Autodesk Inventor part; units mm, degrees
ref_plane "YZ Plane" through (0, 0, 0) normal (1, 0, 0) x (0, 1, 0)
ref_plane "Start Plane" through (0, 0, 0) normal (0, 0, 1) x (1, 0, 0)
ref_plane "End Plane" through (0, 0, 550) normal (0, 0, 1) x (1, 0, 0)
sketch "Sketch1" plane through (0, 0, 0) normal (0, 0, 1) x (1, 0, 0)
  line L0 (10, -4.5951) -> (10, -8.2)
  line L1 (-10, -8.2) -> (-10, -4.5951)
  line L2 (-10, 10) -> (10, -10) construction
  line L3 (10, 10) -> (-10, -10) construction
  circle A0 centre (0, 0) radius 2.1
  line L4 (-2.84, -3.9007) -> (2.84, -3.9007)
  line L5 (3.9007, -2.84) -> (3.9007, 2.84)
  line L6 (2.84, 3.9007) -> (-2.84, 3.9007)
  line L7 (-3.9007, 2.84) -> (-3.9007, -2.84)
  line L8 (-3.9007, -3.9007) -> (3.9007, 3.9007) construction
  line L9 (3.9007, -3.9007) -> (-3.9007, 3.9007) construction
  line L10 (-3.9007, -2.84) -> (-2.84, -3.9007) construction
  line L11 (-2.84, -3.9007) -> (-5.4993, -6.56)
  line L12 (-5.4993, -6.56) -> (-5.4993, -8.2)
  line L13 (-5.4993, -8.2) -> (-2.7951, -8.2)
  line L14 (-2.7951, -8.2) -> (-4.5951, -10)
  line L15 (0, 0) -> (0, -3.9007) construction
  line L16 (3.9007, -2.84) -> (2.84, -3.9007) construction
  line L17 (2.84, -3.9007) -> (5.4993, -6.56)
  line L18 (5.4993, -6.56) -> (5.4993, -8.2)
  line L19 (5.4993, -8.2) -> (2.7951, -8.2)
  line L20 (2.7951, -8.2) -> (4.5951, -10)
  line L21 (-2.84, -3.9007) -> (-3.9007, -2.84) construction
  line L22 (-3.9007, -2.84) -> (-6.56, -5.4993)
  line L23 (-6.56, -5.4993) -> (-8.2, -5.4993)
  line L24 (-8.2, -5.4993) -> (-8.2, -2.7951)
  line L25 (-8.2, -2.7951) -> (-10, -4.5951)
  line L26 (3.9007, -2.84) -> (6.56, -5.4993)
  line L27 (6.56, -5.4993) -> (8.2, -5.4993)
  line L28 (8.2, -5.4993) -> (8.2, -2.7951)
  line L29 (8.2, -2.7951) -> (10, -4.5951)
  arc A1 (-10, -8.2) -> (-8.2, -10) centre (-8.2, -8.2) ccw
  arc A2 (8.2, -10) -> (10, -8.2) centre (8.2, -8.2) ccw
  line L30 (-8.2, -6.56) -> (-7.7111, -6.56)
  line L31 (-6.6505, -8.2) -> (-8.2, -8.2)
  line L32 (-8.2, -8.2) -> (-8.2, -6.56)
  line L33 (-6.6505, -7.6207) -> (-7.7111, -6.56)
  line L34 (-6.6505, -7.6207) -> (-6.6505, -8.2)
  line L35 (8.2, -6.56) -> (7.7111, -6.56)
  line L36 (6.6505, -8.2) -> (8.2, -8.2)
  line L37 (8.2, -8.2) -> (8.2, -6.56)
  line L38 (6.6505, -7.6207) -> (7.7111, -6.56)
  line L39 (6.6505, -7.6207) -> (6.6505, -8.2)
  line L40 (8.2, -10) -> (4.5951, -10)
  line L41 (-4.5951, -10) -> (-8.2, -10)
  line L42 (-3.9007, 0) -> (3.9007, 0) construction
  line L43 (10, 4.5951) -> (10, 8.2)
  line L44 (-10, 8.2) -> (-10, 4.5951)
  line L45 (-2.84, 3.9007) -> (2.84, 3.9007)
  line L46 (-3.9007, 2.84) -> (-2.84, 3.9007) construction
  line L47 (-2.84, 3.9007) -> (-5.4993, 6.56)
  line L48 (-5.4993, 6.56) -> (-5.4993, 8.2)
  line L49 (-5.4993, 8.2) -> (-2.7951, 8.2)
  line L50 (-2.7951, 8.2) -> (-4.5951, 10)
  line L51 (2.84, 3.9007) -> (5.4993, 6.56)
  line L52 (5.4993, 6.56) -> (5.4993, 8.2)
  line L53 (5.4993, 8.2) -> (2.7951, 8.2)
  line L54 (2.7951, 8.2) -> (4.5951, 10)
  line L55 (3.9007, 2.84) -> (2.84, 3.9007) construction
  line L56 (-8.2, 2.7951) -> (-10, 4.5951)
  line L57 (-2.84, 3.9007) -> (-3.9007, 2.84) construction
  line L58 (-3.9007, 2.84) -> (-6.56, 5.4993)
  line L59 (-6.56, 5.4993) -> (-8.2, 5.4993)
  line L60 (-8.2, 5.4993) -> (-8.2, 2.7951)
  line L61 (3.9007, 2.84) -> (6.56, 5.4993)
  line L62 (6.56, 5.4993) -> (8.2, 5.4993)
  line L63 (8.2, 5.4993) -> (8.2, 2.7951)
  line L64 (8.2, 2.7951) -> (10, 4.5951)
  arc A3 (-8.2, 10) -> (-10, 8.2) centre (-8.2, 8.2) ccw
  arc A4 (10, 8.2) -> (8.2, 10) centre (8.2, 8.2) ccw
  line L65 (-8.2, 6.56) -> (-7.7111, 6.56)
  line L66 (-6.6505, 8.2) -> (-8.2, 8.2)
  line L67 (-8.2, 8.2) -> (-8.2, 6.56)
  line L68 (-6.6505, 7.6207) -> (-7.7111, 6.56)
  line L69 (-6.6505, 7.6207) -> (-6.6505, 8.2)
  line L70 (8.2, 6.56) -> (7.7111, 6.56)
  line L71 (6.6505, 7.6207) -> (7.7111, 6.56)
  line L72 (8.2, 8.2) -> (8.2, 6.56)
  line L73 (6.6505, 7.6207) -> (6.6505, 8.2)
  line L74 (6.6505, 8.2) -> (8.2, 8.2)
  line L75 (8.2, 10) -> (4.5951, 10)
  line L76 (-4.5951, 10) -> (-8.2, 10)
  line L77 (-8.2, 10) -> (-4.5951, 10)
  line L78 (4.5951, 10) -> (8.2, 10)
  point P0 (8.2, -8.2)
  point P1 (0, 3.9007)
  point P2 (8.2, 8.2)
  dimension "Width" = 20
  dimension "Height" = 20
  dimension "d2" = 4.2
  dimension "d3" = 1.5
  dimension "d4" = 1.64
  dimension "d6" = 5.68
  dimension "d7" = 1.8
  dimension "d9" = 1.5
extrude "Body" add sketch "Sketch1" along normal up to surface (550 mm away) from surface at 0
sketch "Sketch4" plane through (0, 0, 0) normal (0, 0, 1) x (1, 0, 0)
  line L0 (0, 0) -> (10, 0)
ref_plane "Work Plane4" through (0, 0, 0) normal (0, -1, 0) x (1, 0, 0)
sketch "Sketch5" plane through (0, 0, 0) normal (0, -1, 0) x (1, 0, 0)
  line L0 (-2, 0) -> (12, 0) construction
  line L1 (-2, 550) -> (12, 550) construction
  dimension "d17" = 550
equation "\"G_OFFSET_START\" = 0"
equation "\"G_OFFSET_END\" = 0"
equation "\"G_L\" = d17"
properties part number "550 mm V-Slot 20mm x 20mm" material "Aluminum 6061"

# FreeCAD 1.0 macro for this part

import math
import FreeCAD as App
import Part
import Sketcher

V = App.Vector
Q = App.Units.Quantity


def add_polygon(sketch, points):
    """Adds a closed chain of lines whose ends are joined by coincident constraints."""
    first, n = sketch.GeometryCount, len(points)
    for a, b in zip(points, points[1:] + points[:1]):
        sketch.addGeometry(Part.LineSegment(App.Vector(*a, 0), App.Vector(*b, 0)), False)
    for i in range(n):
        sketch.addConstraint(Sketcher.Constraint("Coincident", first + i, 2, first + (i + 1) % n, 1))

doc = App.newDocument("Part")
body = doc.addObject("PartDesign::Body", "Body")

sketch1 = doc.addObject("Sketcher::SketchObject", "Sketch")
body.addObject(sketch1)
sketch1.AttachmentSupport = (doc.XY_Plane, [""])
sketch1.MapMode = "FlatFace"
sketch1.addGeometry(Part.LineSegment(V(10, -8.2, 0), V(10, -4.6, 0)), False)
sketch1.addGeometry(Part.LineSegment(V(10, -4.6, 0), V(8.2, -2.8, 0)), False)
sketch1.addGeometry(Part.LineSegment(V(8.2, -2.8, 0), V(8.2, -5.5, 0)), False)
sketch1.addGeometry(Part.LineSegment(V(8.2, -5.5, 0), V(6.56, -5.5, 0)), False)
sketch1.addGeometry(Part.LineSegment(V(6.56, -5.5, 0), V(3.9, -2.84, 0)), False)
sketch1.addGeometry(Part.LineSegment(V(3.9, -2.84, 0), V(3.9, 2.84, 0)), False)
sketch1.addGeometry(Part.LineSegment(V(3.9, 2.84, 0), V(6.56, 5.5, 0)), False)
sketch1.addGeometry(Part.LineSegment(V(6.56, 5.5, 0), V(8.2, 5.5, 0)), False)
sketch1.addGeometry(Part.LineSegment(V(8.2, 5.5, 0), V(8.2, 2.8, 0)), False)
sketch1.addGeometry(Part.LineSegment(V(8.2, 2.8, 0), V(10, 4.6, 0)), False)
sketch1.addGeometry(Part.LineSegment(V(10, 4.6, 0), V(10, 8.2, 0)), False)
sketch1.addGeometry(Part.ArcOfCircle(Part.Circle(V(8.2, 8.2, 0), V(0, 0, 1), 1.8), math.radians(0), math.radians(90)), False)
sketch1.addGeometry(Part.LineSegment(V(8.2, 10, 0), V(4.6, 10, 0)), False)
sketch1.addGeometry(Part.LineSegment(V(4.6, 10, 0), V(2.8, 8.2, 0)), False)
sketch1.addGeometry(Part.LineSegment(V(2.8, 8.2, 0), V(5.5, 8.2, 0)), False)
sketch1.addGeometry(Part.LineSegment(V(5.5, 8.2, 0), V(5.5, 6.56, 0)), False)
sketch1.addGeometry(Part.LineSegment(V(5.5, 6.56, 0), V(2.84, 3.9, 0)), False)
sketch1.addGeometry(Part.LineSegment(V(2.84, 3.9, 0), V(-2.84, 3.9, 0)), False)
sketch1.addGeometry(Part.LineSegment(V(-2.84, 3.9, 0), V(-5.5, 6.56, 0)), False)
sketch1.addGeometry(Part.LineSegment(V(-5.5, 6.56, 0), V(-5.5, 8.2, 0)), False)
sketch1.addGeometry(Part.LineSegment(V(-5.5, 8.2, 0), V(-2.8, 8.2, 0)), False)
sketch1.addGeometry(Part.LineSegment(V(-2.8, 8.2, 0), V(-4.6, 10, 0)), False)
sketch1.addGeometry(Part.LineSegment(V(-4.6, 10, 0), V(-8.2, 10, 0)), False)
sketch1.addGeometry(Part.ArcOfCircle(Part.Circle(V(-8.2, 8.2, 0), V(0, 0, 1), 1.8), math.radians(90), math.radians(180)), False)
sketch1.addGeometry(Part.LineSegment(V(-10, 8.2, 0), V(-10, 4.6, 0)), False)
sketch1.addGeometry(Part.LineSegment(V(-10, 4.6, 0), V(-8.2, 2.8, 0)), False)
sketch1.addGeometry(Part.LineSegment(V(-8.2, 2.8, 0), V(-8.2, 5.5, 0)), False)
sketch1.addGeometry(Part.LineSegment(V(-8.2, 5.5, 0), V(-6.56, 5.5, 0)), False)
sketch1.addGeometry(Part.LineSegment(V(-6.56, 5.5, 0), V(-3.9, 2.84, 0)), False)
sketch1.addGeometry(Part.LineSegment(V(-3.9, 2.84, 0), V(-3.9, -2.84, 0)), False)
sketch1.addGeometry(Part.LineSegment(V(-3.9, -2.84, 0), V(-6.56, -5.5, 0)), False)
sketch1.addGeometry(Part.LineSegment(V(-6.56, -5.5, 0), V(-8.2, -5.5, 0)), False)
sketch1.addGeometry(Part.LineSegment(V(-8.2, -5.5, 0), V(-8.2, -2.8, 0)), False)
sketch1.addGeometry(Part.LineSegment(V(-8.2, -2.8, 0), V(-10, -4.6, 0)), False)
sketch1.addGeometry(Part.LineSegment(V(-10, -4.6, 0), V(-10, -8.2, 0)), False)
sketch1.addGeometry(Part.ArcOfCircle(Part.Circle(V(-8.2, -8.2, 0), V(0, 0, 1), 1.8), math.radians(180), math.radians(270)), False)
sketch1.addGeometry(Part.LineSegment(V(-8.2, -10, 0), V(-4.6, -10, 0)), False)
sketch1.addGeometry(Part.LineSegment(V(-4.6, -10, 0), V(-2.8, -8.2, 0)), False)
sketch1.addGeometry(Part.LineSegment(V(-2.8, -8.2, 0), V(-5.5, -8.2, 0)), False)
sketch1.addGeometry(Part.LineSegment(V(-5.5, -8.2, 0), V(-5.5, -6.56, 0)), False)
sketch1.addGeometry(Part.LineSegment(V(-5.5, -6.56, 0), V(-2.84, -3.9, 0)), False)
sketch1.addGeometry(Part.LineSegment(V(-2.84, -3.9, 0), V(2.84, -3.9, 0)), False)
sketch1.addGeometry(Part.LineSegment(V(2.84, -3.9, 0), V(5.5, -6.56, 0)), False)
sketch1.addGeometry(Part.LineSegment(V(5.5, -6.56, 0), V(5.5, -8.2, 0)), False)
sketch1.addGeometry(Part.LineSegment(V(5.5, -8.2, 0), V(2.8, -8.2, 0)), False)
sketch1.addGeometry(Part.LineSegment(V(2.8, -8.2, 0), V(4.6, -10, 0)), False)
sketch1.addGeometry(Part.LineSegment(V(4.6, -10, 0), V(8.2, -10, 0)), False)
sketch1.addGeometry(Part.ArcOfCircle(Part.Circle(V(8.2, -8.2, 0), V(0, 0, 1), 1.8), math.radians(-90), math.radians(0)), False)
add_polygon(sketch1, [(-8.2, -8.2), (-8.2, -6.56), (-7.71, -6.56), (-6.65, -7.62), (-6.65, -8.2)])
add_polygon(sketch1, [(7.71, -6.56), (8.2, -6.56), (8.2, -8.2), (6.65, -8.2), (6.65, -7.62)])
add_polygon(sketch1, [(-7.71, 6.56), (-8.2, 6.56), (-8.2, 8.2), (-6.65, 8.2), (-6.65, 7.62)])
sketch1.addGeometry(Part.Circle(V(0, 0, 0), V(0, 0, 1), 2.1), False)
add_polygon(sketch1, [(8.2, 8.2), (8.2, 6.56), (7.71, 6.56), (6.65, 7.62), (6.65, 8.2)])
sketch1.addConstraint([
    Sketcher.Constraint("Coincident", 0, 2, 1, 1),
    Sketcher.Constraint("Coincident", 1, 2, 2, 1),
    Sketcher.Constraint("Coincident", 2, 2, 3, 1),
    Sketcher.Constraint("Coincident", 3, 2, 4, 1),
    Sketcher.Constraint("Coincident", 4, 2, 5, 1),
    Sketcher.Constraint("Coincident", 5, 2, 6, 1),
    Sketcher.Constraint("Coincident", 6, 2, 7, 1),
    Sketcher.Constraint("Coincident", 7, 2, 8, 1),
    Sketcher.Constraint("Coincident", 8, 2, 9, 1),
    Sketcher.Constraint("Coincident", 9, 2, 10, 1),
    Sketcher.Constraint("Tangent", 10, 2, 11, 1),
    Sketcher.Constraint("Tangent", 11, 2, 12, 1),
    Sketcher.Constraint("Coincident", 12, 2, 13, 1),
    Sketcher.Constraint("Coincident", 13, 2, 14, 1),
    Sketcher.Constraint("Coincident", 14, 2, 15, 1),
    Sketcher.Constraint("Coincident", 15, 2, 16, 1),
    Sketcher.Constraint("Coincident", 16, 2, 17, 1),
    Sketcher.Constraint("Coincident", 17, 2, 18, 1),
    Sketcher.Constraint("Coincident", 18, 2, 19, 1),
    Sketcher.Constraint("Coincident", 19, 2, 20, 1),
    Sketcher.Constraint("Coincident", 20, 2, 21, 1),
    Sketcher.Constraint("Coincident", 21, 2, 22, 1),
    Sketcher.Constraint("Tangent", 22, 2, 23, 1),
    Sketcher.Constraint("Tangent", 23, 2, 24, 1),
    Sketcher.Constraint("Coincident", 24, 2, 25, 1),
    Sketcher.Constraint("Coincident", 25, 2, 26, 1),
    Sketcher.Constraint("Coincident", 26, 2, 27, 1),
    Sketcher.Constraint("Coincident", 27, 2, 28, 1),
    Sketcher.Constraint("Coincident", 28, 2, 29, 1),
    Sketcher.Constraint("Coincident", 29, 2, 30, 1),
    Sketcher.Constraint("Coincident", 30, 2, 31, 1),
    Sketcher.Constraint("Coincident", 31, 2, 32, 1),
    Sketcher.Constraint("Coincident", 32, 2, 33, 1),
    Sketcher.Constraint("Coincident", 33, 2, 34, 1),
    Sketcher.Constraint("Tangent", 34, 2, 35, 1),
    Sketcher.Constraint("Tangent", 35, 2, 36, 1),
    Sketcher.Constraint("Coincident", 36, 2, 37, 1),
    Sketcher.Constraint("Coincident", 37, 2, 38, 1),
    Sketcher.Constraint("Coincident", 38, 2, 39, 1),
    Sketcher.Constraint("Coincident", 39, 2, 40, 1),
    Sketcher.Constraint("Coincident", 40, 2, 41, 1),
    Sketcher.Constraint("Coincident", 41, 2, 42, 1),
    Sketcher.Constraint("Coincident", 42, 2, 43, 1),
    Sketcher.Constraint("Coincident", 43, 2, 44, 1),
    Sketcher.Constraint("Coincident", 44, 2, 45, 1),
    Sketcher.Constraint("Coincident", 45, 2, 46, 1),
    Sketcher.Constraint("Tangent", 46, 2, 47, 1),
    Sketcher.Constraint("Tangent", 47, 2, 0, 1),
    Sketcher.Constraint("Vertical", 0),
    Sketcher.Constraint("Vertical", 2),
    Sketcher.Constraint("Horizontal", 3),
    Sketcher.Constraint("Vertical", 5),
    Sketcher.Constraint("Horizontal", 7),
    Sketcher.Constraint("Vertical", 8),
    Sketcher.Constraint("Vertical", 10),
    Sketcher.Constraint("Horizontal", 12),
    Sketcher.Constraint("Horizontal", 14),
    Sketcher.Constraint("Vertical", 15),
    Sketcher.Constraint("Horizontal", 17),
    Sketcher.Constraint("Vertical", 19),
    Sketcher.Constraint("Horizontal", 20),
    Sketcher.Constraint("Horizontal", 22),
    Sketcher.Constraint("Vertical", 24),
    Sketcher.Constraint("Vertical", 26),
    Sketcher.Constraint("Horizontal", 27),
    Sketcher.Constraint("Vertical", 29),
    Sketcher.Constraint("Horizontal", 31),
    Sketcher.Constraint("Vertical", 32),
    Sketcher.Constraint("Vertical", 34),
    Sketcher.Constraint("Horizontal", 36),
    Sketcher.Constraint("Horizontal", 38),
    Sketcher.Constraint("Vertical", 39),
    Sketcher.Constraint("Horizontal", 41),
    Sketcher.Constraint("Vertical", 43),
    Sketcher.Constraint("Horizontal", 44),
    Sketcher.Constraint("Horizontal", 46),
    Sketcher.Constraint("Vertical", 48),
    Sketcher.Constraint("Horizontal", 49),
    Sketcher.Constraint("Vertical", 51),
    Sketcher.Constraint("Horizontal", 52),
    Sketcher.Constraint("Horizontal", 53),
    Sketcher.Constraint("Vertical", 54),
    Sketcher.Constraint("Horizontal", 55),
    Sketcher.Constraint("Vertical", 56),
    Sketcher.Constraint("Horizontal", 58),
    Sketcher.Constraint("Vertical", 59),
    Sketcher.Constraint("Horizontal", 60),
    Sketcher.Constraint("Vertical", 61),
    Sketcher.Constraint("Vertical", 64),
    Sketcher.Constraint("Horizontal", 65),
    Sketcher.Constraint("Vertical", 67),
    Sketcher.Constraint("Horizontal", 68),
    Sketcher.Constraint("Coincident", 63, 3, -1, 1),
    Sketcher.Constraint("Coincident", 52, 2, 35, 3),
    Sketcher.Constraint("Coincident", 54, 2, 47, 3),
    Sketcher.Constraint("Coincident", 59, 2, 23, 3),
    Sketcher.Constraint("Coincident", 68, 2, 11, 3),
    Sketcher.Constraint("Equal", 11, 23),
    Sketcher.Constraint("Equal", 23, 35),
    Sketcher.Constraint("Equal", 35, 47),
    Sketcher.Constraint("Symmetric", 11, 3, 35, 3, -1, 1),
    Sketcher.Constraint("Symmetric", 23, 3, 47, 3, -1, 1),
    Sketcher.Constraint("Symmetric", 1, 2, 25, 2, -1, 1),
    Sketcher.Constraint("Symmetric", 3, 2, 27, 2, -1, 1),
    Sketcher.Constraint("Symmetric", 4, 2, 28, 2, -1, 1),
    Sketcher.Constraint("Symmetric", 6, 2, 30, 2, -1, 1),
    Sketcher.Constraint("Symmetric", 8, 2, 32, 2, -1, 1),
    Sketcher.Constraint("Symmetric", 13, 2, 37, 2, -1, 1),
    Sketcher.Constraint("Symmetric", 15, 2, 39, 2, -1, 1),
    Sketcher.Constraint("Symmetric", 16, 2, 40, 2, -1, 1),
    Sketcher.Constraint("Symmetric", 18, 2, 42, 2, -1, 1),
    Sketcher.Constraint("Symmetric", 20, 2, 44, 2, -1, 1),
    Sketcher.Constraint("Symmetric", 56, 2, 61, 2, -1, 1),
    Sketcher.Constraint("Symmetric", 57, 2, 62, 2, -1, 1),
    Sketcher.Constraint("Symmetric", 49, 2, 65, 2, -1, 1),
    Sketcher.Constraint("Symmetric", 50, 2, 66, 2, -1, 1),
    Sketcher.Constraint("Symmetric", 11, 3, 23, 3, -2),
    Sketcher.Constraint("Symmetric", 15, 2, 18, 2, -2),
    Sketcher.Constraint("Symmetric", 13, 2, 20, 2, -2),
    Sketcher.Constraint("Symmetric", 8, 2, 25, 2, -2),
    Sketcher.Constraint("Symmetric", 6, 2, 27, 2, -2),
    Sketcher.Constraint("Symmetric", 50, 2, 56, 2, -2),
    Sketcher.Constraint("Symmetric", 49, 2, 57, 2, -2),
    Sketcher.Constraint("Parallel", 1, 4),
    Sketcher.Constraint("Perpendicular", 4, 6),
    Sketcher.Constraint("Parallel", 6, 9),
    Sketcher.Constraint("Parallel", 9, 13),
    Sketcher.Constraint("Parallel", 13, 16),
    Sketcher.Constraint("Perpendicular", 16, 18),
    Sketcher.Constraint("Parallel", 18, 21),
    Sketcher.Constraint("Parallel", 21, 25),
    Sketcher.Constraint("Perpendicular", 28, 30),
    Sketcher.Constraint("Parallel", 30, 33),
    Sketcher.Constraint("Parallel", 33, 37),
    Sketcher.Constraint("Perpendicular", 40, 42),
    Sketcher.Constraint("Parallel", 42, 45),
    Sketcher.Constraint("Parallel", 45, 50),
    Sketcher.Constraint("Perpendicular", 50, 57),
    Sketcher.Constraint("Horizontal", 10, 2, 13, 2),
    Sketcher.Constraint("Horizontal", 42, 2, 48, 2),
    Sketcher.Constraint("Vertical", 47, 3, 1, 2),
    Sketcher.Constraint("Equal", 46, 0),
    Sketcher.Constraint("Equal", 44, 2),
    Sketcher.Constraint("Equal", 41, 5),
    Sketcher.Constraint("Equal", 31, 15),
    Sketcher.Constraint("Equal", 6, 16),
    Sketcher.Constraint("Diameter", 63, Q("4.2 mm")),
    Sketcher.Constraint("Radius", 11, Q("1.8 mm")),
    Sketcher.Constraint("Distance", 50, Q("1.5 mm")),
    Sketcher.Constraint("DistanceX", 3, 2, 3, 1, Q("1.64 mm")),
    Sketcher.Constraint("DistanceX", 17, 2, 17, 1, Q("5.68 mm")),
    Sketcher.Constraint("DistanceX", -1, 1, 0, 2, Q("10 mm")),
    Sketcher.Constraint("DistanceX", 12, 2, 12, 1, Q("3.605 mm")),
    Sketcher.Constraint("DistanceX", 49, 1, 49, 2, Q("0.489 mm")),
    Sketcher.Constraint("DistanceX", 14, 1, 14, 2, Q("2.7042 mm")),
])
pad1 = doc.addObject("PartDesign::Pad", "Pad")
body.addObject(pad1)
pad1.Profile = sketch1
pad1.Length = 550

doc.recompute()
